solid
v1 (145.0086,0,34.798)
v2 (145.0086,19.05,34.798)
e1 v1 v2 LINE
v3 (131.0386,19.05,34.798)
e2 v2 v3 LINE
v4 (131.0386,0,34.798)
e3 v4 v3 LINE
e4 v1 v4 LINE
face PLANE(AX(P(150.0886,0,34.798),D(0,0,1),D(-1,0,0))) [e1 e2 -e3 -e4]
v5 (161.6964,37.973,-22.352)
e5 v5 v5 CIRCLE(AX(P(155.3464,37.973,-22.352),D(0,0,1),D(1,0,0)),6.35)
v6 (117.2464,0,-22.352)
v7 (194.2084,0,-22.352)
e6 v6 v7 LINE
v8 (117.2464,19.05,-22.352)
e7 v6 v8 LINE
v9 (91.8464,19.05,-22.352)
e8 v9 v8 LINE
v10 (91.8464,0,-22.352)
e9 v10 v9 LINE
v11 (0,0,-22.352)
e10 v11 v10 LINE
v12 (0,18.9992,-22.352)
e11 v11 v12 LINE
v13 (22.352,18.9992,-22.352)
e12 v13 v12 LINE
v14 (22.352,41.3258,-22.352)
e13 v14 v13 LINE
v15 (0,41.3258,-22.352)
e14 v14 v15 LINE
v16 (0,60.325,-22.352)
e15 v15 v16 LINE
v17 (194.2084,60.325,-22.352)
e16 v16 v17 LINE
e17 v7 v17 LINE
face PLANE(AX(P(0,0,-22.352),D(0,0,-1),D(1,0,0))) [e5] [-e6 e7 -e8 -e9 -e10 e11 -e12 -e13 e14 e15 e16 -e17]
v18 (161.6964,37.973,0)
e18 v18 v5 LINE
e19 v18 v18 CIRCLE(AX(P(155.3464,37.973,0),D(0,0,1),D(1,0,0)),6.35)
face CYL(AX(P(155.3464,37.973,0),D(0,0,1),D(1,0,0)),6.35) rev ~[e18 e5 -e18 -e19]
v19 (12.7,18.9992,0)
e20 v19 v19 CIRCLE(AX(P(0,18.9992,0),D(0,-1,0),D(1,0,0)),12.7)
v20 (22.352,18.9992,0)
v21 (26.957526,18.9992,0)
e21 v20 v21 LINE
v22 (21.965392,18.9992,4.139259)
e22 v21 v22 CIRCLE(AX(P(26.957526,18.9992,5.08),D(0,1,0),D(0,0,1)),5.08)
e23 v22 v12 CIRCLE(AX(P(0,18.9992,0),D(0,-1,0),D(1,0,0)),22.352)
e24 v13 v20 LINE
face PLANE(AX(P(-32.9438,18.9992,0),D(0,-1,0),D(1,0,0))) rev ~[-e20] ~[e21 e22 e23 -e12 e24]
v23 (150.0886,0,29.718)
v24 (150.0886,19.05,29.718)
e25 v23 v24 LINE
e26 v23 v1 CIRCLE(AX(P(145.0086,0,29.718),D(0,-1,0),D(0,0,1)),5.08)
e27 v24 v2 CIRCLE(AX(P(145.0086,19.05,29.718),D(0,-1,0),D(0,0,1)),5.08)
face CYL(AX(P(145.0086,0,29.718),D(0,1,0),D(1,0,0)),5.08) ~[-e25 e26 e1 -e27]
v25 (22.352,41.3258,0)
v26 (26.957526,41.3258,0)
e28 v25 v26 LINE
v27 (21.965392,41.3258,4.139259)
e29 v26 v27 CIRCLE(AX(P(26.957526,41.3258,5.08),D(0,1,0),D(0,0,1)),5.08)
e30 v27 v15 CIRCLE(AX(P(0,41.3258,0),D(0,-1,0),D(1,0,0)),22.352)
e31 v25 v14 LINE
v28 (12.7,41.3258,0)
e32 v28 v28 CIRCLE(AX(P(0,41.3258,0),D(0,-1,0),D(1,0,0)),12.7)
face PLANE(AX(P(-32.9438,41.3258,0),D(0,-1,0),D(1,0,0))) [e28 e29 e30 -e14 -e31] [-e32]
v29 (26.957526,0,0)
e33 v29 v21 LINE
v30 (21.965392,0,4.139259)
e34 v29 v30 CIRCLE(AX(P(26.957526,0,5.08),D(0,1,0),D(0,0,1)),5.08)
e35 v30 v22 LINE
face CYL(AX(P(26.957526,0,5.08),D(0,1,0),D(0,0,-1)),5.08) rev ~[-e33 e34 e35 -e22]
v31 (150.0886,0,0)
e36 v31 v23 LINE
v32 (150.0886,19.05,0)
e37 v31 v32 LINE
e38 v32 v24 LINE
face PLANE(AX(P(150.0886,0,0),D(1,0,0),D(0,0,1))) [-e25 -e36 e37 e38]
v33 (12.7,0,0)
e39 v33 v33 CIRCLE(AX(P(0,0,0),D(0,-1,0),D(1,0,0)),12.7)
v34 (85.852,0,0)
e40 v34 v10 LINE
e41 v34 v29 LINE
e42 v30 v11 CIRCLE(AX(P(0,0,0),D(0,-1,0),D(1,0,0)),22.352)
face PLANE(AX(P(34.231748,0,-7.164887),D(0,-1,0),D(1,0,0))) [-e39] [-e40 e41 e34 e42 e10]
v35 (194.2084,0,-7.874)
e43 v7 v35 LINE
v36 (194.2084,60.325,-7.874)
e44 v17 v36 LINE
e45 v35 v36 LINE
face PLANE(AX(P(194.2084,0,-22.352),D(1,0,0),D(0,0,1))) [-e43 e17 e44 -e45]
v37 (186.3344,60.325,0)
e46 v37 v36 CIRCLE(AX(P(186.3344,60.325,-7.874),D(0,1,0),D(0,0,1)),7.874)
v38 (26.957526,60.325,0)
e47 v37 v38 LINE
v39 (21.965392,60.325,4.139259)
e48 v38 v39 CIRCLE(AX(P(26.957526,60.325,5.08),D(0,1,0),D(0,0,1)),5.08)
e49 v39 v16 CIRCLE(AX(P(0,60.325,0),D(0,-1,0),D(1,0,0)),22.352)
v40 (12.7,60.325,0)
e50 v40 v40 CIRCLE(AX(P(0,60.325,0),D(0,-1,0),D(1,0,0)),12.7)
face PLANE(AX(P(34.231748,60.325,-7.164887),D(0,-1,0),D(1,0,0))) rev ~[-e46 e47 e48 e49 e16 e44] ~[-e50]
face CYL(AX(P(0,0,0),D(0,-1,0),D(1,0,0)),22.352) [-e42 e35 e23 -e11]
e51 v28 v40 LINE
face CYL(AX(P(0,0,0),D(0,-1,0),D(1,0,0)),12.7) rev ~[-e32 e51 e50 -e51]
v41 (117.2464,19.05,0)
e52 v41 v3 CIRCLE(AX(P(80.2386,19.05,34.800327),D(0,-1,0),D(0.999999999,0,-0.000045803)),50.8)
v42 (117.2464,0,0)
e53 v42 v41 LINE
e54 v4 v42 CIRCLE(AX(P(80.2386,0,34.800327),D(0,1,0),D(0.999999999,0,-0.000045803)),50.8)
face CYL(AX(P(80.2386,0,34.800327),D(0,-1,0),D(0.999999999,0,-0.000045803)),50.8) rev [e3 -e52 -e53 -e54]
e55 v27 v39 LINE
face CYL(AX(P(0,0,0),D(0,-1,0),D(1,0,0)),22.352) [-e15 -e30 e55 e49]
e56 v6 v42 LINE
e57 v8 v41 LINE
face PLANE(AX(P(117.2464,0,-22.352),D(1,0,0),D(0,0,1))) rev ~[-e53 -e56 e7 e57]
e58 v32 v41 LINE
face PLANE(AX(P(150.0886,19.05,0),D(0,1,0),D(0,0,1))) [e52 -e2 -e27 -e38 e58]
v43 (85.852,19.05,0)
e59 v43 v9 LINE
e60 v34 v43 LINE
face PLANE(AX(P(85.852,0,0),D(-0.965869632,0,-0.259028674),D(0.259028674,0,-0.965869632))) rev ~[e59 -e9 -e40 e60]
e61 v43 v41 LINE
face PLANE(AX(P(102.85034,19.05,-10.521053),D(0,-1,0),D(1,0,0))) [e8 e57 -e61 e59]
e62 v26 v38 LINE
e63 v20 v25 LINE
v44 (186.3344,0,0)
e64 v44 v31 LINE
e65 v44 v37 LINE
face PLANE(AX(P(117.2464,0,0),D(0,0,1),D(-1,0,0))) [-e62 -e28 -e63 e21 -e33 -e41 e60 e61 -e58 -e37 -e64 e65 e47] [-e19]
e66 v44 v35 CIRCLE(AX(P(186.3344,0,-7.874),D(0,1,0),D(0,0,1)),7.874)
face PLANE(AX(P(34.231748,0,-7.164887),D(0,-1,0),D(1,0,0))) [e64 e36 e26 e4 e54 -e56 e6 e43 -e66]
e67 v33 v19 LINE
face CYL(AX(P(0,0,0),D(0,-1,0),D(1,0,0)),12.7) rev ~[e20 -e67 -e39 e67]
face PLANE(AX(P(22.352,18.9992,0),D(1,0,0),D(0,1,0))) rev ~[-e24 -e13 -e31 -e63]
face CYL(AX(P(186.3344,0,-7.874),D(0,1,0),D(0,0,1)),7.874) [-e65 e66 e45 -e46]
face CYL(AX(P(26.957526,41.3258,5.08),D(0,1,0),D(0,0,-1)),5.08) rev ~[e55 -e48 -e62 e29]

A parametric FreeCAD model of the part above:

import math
import FreeCAD as App
import Part
import Sketcher
Q = App.Units.Quantity


def edges_at(feature, points):
    """Names of the edges that pass closest to the given points."""
    edges = feature.Shape.Edges
    near = lambda p: min(range(len(edges)), key=lambda i: edges[i].distToShape(Part.Vertex(*p))[0])
    return sorted({f"Edge{near(p) + 1}" for p in points})

doc = App.newDocument("Part")
body = doc.addObject("PartDesign::Body", "Body")

sketch1 = body.newObject("Sketcher::SketchObject", "Sketch")
sketch1.AttachmentSupport = (doc.getObject("XZ_Plane"), [""])
sketch1.MapMode = "FlatFace"
sketch1.addGeometry(Part.ArcOfCircle(Part.Circle(App.Vector(0, 0, 0), App.Vector(0, 0, 1), 22), math.radians(0), math.radians(270)), False)
sketch1.addGeometry(Part.LineSegment(App.Vector(0, -22, 0), App.Vector(194, -22, 0)), False)
sketch1.addGeometry(Part.LineSegment(App.Vector(194, -22, 0), App.Vector(194, 0, 0)), False)
sketch1.addGeometry(Part.LineSegment(App.Vector(194, 0, 0), App.Vector(150, 0, 0)), False)
sketch1.addGeometry(Part.LineSegment(App.Vector(150, 0, 0), App.Vector(150, 35, 0)), False)
sketch1.addGeometry(Part.LineSegment(App.Vector(150, 35, 0), App.Vector(131, 35, 0)), False)
sketch1.addGeometry(Part.ArcOfCircle(Part.Circle(App.Vector(80, 35, 0), App.Vector(0, 0, 1), 51), math.radians(-43), math.radians(0)), False)
sketch1.addGeometry(Part.LineSegment(App.Vector(117, 0, 0), App.Vector(22, 0, 0)), False)
sketch1.addGeometry(Part.Circle(App.Vector(0, 0, 0), App.Vector(0, 0, 1), 13), False)
sketch1.addConstraint(Sketcher.Constraint("Tangent", 0, 2, 1, 1))
sketch1.addConstraint(Sketcher.Constraint("Coincident", 1, 2, 2, 1))
sketch1.addConstraint(Sketcher.Constraint("Coincident", 2, 2, 3, 1))
sketch1.addConstraint(Sketcher.Constraint("Coincident", 3, 2, 4, 1))
sketch1.addConstraint(Sketcher.Constraint("Coincident", 4, 2, 5, 1))
sketch1.addConstraint(Sketcher.Constraint("Coincident", 5, 2, 6, 2))
sketch1.addConstraint(Sketcher.Constraint("Coincident", 6, 1, 7, 1))
sketch1.addConstraint(Sketcher.Constraint("Coincident", 7, 2, 0, 1))
sketch1.addConstraint(Sketcher.Constraint("Horizontal", 1))
sketch1.addConstraint(Sketcher.Constraint("Vertical", 2))
sketch1.addConstraint(Sketcher.Constraint("Horizontal", 3))
sketch1.addConstraint(Sketcher.Constraint("Vertical", 4))
sketch1.addConstraint(Sketcher.Constraint("Horizontal", 5))
sketch1.addConstraint(Sketcher.Constraint("Horizontal", 7))
sketch1.addConstraint(Sketcher.Constraint("Coincident", 0, 3, -1, 1))
sketch1.addConstraint(Sketcher.Constraint("Coincident", 8, 3, -1, 1))
sketch1.addConstraint(Sketcher.Constraint("PointOnObject", 2, 2, -1))
sketch1.addConstraint(Sketcher.Constraint("PointOnObject", 6, 1, -1))
sketch1.addConstraint(Sketcher.Constraint("Diameter", 8, Q("1 in")))
sketch1.addConstraint(Sketcher.Constraint("Radius", 6, Q("2 in")))
sketch1.addConstraint(Sketcher.Constraint("Radius", 0, Q("0.88 in")))
sketch1.addConstraint(Sketcher.Constraint("DistanceX", 5, 2, 5, 1, Q("0.75 in")))
sketch1.addConstraint(Sketcher.Constraint("DistanceY", 4, 1, 4, 2, Q("1.37 in")))
sketch1.addConstraint(Sketcher.Constraint("DistanceX", 1, 1, 1, 2, Q("7.646 in")))
sketch1.addConstraint(Sketcher.Constraint("DistanceX", 3, 2, 3, 1, Q("1.737 in")))
sketch1.addConstraint(Sketcher.Constraint("DistanceX", 7, 2, 7, 1, Q("3.736 in")))
pad1 = body.newObject("PartDesign::Pad", "Pad")
pad1.Profile = sketch1
pad1.Length = Q("2.375 in")
pad1.Reversed = True

sketch2 = body.newObject("Sketcher::SketchObject", "Sketch001")
sketch2.AttachmentSupport = (doc.getObject("XZ_Plane"), [""])
sketch2.MapMode = "FlatFace"
sketch2.addGeometry(Part.LineSegment(App.Vector(117, 0, 0), App.Vector(86, 0, 0)), False)
sketch2.addGeometry(Part.LineSegment(App.Vector(86, 0, 0), App.Vector(92, -22, 0)), False)
sketch2.addGeometry(Part.LineSegment(App.Vector(92, -22, 0), App.Vector(117, -22, 0)), False)
sketch2.addGeometry(Part.LineSegment(App.Vector(117, -22, 0), App.Vector(117, 0, 0)), False)
sketch2.addConstraint(Sketcher.Constraint("Coincident", 0, 2, 1, 1))
sketch2.addConstraint(Sketcher.Constraint("Coincident", 1, 2, 2, 1))
sketch2.addConstraint(Sketcher.Constraint("Coincident", 2, 2, 3, 1))
sketch2.addConstraint(Sketcher.Constraint("Coincident", 3, 2, 0, 1))
sketch2.addConstraint(Sketcher.Constraint("Horizontal", 0))
sketch2.addConstraint(Sketcher.Constraint("Horizontal", 2))
sketch2.addConstraint(Sketcher.Constraint("Vertical", 3))
sketch2.addConstraint(Sketcher.Constraint("PointOnObject", 0, 2, -1))
sketch2.addConstraint(Sketcher.Constraint("DistanceX", 2, 1, 2, 2, Q("1 in")))
sketch2.addConstraint(Sketcher.Constraint("DistanceY", 3, 1, 3, 2, Q("0.88 in")))
sketch2.addConstraint(Sketcher.Constraint("DistanceX", 0, 2, 0, 1, Q("1.236 in")))
sketch2.addConstraint(Sketcher.Constraint("DistanceX", -1, 1, 0, 2, Q("3.38 in")))
pocket1 = body.newObject("PartDesign::Pocket", "Pocket")
pocket1.Profile = sketch2
pocket1.Length = Q("0.75 in")

sketch3 = body.newObject("Sketcher::SketchObject", "Sketch002")
sketch3.AttachmentSupport = (doc.getObject("YZ_Plane"), [""])
sketch3.MapMode = "FlatFace"
sketch3.AttachmentOffset = App.Placement(App.Vector(0, 0, 5.909 * 25.4), App.Rotation())
sketch3.addGeometry(Part.LineSegment(App.Vector(19, 35, 0), App.Vector(19, 0, 0)), False)
sketch3.addGeometry(Part.LineSegment(App.Vector(19, 0, 0), App.Vector(60, 0, 0)), False)
sketch3.addGeometry(Part.LineSegment(App.Vector(60, 0, 0), App.Vector(60, 35, 0)), False)
sketch3.addGeometry(Part.LineSegment(App.Vector(60, 35, 0), App.Vector(19, 35, 0)), False)
sketch3.addConstraint(Sketcher.Constraint("Coincident", 0, 2, 1, 1))
sketch3.addConstraint(Sketcher.Constraint("Coincident", 1, 2, 2, 1))
sketch3.addConstraint(Sketcher.Constraint("Coincident", 2, 2, 3, 1))
sketch3.addConstraint(Sketcher.Constraint("Coincident", 3, 2, 0, 1))
sketch3.addConstraint(Sketcher.Constraint("Vertical", 0))
sketch3.addConstraint(Sketcher.Constraint("Horizontal", 1))
sketch3.addConstraint(Sketcher.Constraint("Vertical", 2))
sketch3.addConstraint(Sketcher.Constraint("Horizontal", 3))
sketch3.addConstraint(Sketcher.Constraint("PointOnObject", 0, 2, -1))
sketch3.addConstraint(Sketcher.Constraint("DistanceY", 0, 2, 0, 1, Q("1.37 in")))
sketch3.addConstraint(Sketcher.Constraint("DistanceX", 1, 1, 1, 2, Q("1.625 in")))
sketch3.addConstraint(Sketcher.Constraint("DistanceX", -1, 1, 0, 2, Q("0.75 in")))
pocket2 = body.newObject("PartDesign::Pocket", "Pocket001")
pocket2.Profile = sketch3
pocket2.Length = Q("2 in")

sketch4 = body.newObject("Sketcher::SketchObject", "Sketch003")
sketch4.AttachmentSupport = (doc.getObject("XY_Plane"), [""])
sketch4.MapMode = "FlatFace"
sketch4.addGeometry(Part.LineSegment(App.Vector(-33, 41, 0), App.Vector(-33, 19, 0)), False)
sketch4.addGeometry(Part.LineSegment(App.Vector(-33, 19, 0), App.Vector(22, 19, 0)), False)
sketch4.addGeometry(Part.LineSegment(App.Vector(22, 19, 0), App.Vector(22, 41, 0)), False)
sketch4.addGeometry(Part.LineSegment(App.Vector(22, 41, 0), App.Vector(-33, 41, 0)), False)
sketch4.addConstraint(Sketcher.Constraint("Coincident", 0, 2, 1, 1))
sketch4.addConstraint(Sketcher.Constraint("Coincident", 1, 2, 2, 1))
sketch4.addConstraint(Sketcher.Constraint("Coincident", 2, 2, 3, 1))
sketch4.addConstraint(Sketcher.Constraint("Coincident", 3, 2, 0, 1))
sketch4.addConstraint(Sketcher.Constraint("Vertical", 0))
sketch4.addConstraint(Sketcher.Constraint("Horizontal", 1))
sketch4.addConstraint(Sketcher.Constraint("Vertical", 2))
sketch4.addConstraint(Sketcher.Constraint("Horizontal", 3))
sketch4.addConstraint(Sketcher.Constraint("DistanceX", 1, 1, 1, 2, Q("2.177 in")))
sketch4.addConstraint(Sketcher.Constraint("DistanceY", 0, 2, 0, 1, Q("0.879 in")))
sketch4.addConstraint(Sketcher.Constraint("DistanceX", -1, 1, 1, 2, Q("0.88 in")))
sketch4.addConstraint(Sketcher.Constraint("DistanceY", -1, 1, 0, 2, Q("0.748 in")))
pocket3 = body.newObject("PartDesign::Pocket", "Pocket002")
pocket3.Profile = sketch4
pocket3.Length = Q("5 in")
pocket3.Midplane = True

sketch5 = body.newObject("Sketcher::SketchObject", "Sketch004")
sketch5.AttachmentSupport = (doc.getObject("XY_Plane"), [""])
sketch5.MapMode = "FlatFace"
sketch5.addGeometry(Part.Circle(App.Vector(155, 38, 0), App.Vector(0, 0, 1), 6), False)
sketch5.addConstraint(Sketcher.Constraint("Diameter", 0, Q("0.5 in")))
sketch5.addConstraint(Sketcher.Constraint("DistanceX", -1, 1, 0, 3, Q("6.116 in")))
sketch5.addConstraint(Sketcher.Constraint("DistanceY", -1, 1, 0, 3, Q("1.495 in")))
pocket4 = body.newObject("PartDesign::Pocket", "Pocket003")
pocket4.Profile = sketch5
pocket4.Length = Q("5 in")
doc.recompute()

fillet = body.newObject("PartDesign::Fillet", "Fillet")
fillet.Base = (pocket4, edges_at(pocket4, [(194.208, 30.163, 0)]))
fillet.Radius = Q("0.31 in")
doc.recompute()

fillet2 = body.newObject("PartDesign::Fillet", "Fillet001")
fillet2.Base = (fillet, edges_at(fillet, [(150.089, 9.525, 34.798)]))
fillet2.Radius = Q("0.2 in")
doc.recompute()

fillet3 = body.newObject("PartDesign::Fillet", "Fillet002")
fillet3.Base = (fillet2, edges_at(fillet2, [(22.352, 9.5, 0), (22.352, 50.825, 0)]))
fillet3.Radius = Q("0.2 in")

doc.recompute()
